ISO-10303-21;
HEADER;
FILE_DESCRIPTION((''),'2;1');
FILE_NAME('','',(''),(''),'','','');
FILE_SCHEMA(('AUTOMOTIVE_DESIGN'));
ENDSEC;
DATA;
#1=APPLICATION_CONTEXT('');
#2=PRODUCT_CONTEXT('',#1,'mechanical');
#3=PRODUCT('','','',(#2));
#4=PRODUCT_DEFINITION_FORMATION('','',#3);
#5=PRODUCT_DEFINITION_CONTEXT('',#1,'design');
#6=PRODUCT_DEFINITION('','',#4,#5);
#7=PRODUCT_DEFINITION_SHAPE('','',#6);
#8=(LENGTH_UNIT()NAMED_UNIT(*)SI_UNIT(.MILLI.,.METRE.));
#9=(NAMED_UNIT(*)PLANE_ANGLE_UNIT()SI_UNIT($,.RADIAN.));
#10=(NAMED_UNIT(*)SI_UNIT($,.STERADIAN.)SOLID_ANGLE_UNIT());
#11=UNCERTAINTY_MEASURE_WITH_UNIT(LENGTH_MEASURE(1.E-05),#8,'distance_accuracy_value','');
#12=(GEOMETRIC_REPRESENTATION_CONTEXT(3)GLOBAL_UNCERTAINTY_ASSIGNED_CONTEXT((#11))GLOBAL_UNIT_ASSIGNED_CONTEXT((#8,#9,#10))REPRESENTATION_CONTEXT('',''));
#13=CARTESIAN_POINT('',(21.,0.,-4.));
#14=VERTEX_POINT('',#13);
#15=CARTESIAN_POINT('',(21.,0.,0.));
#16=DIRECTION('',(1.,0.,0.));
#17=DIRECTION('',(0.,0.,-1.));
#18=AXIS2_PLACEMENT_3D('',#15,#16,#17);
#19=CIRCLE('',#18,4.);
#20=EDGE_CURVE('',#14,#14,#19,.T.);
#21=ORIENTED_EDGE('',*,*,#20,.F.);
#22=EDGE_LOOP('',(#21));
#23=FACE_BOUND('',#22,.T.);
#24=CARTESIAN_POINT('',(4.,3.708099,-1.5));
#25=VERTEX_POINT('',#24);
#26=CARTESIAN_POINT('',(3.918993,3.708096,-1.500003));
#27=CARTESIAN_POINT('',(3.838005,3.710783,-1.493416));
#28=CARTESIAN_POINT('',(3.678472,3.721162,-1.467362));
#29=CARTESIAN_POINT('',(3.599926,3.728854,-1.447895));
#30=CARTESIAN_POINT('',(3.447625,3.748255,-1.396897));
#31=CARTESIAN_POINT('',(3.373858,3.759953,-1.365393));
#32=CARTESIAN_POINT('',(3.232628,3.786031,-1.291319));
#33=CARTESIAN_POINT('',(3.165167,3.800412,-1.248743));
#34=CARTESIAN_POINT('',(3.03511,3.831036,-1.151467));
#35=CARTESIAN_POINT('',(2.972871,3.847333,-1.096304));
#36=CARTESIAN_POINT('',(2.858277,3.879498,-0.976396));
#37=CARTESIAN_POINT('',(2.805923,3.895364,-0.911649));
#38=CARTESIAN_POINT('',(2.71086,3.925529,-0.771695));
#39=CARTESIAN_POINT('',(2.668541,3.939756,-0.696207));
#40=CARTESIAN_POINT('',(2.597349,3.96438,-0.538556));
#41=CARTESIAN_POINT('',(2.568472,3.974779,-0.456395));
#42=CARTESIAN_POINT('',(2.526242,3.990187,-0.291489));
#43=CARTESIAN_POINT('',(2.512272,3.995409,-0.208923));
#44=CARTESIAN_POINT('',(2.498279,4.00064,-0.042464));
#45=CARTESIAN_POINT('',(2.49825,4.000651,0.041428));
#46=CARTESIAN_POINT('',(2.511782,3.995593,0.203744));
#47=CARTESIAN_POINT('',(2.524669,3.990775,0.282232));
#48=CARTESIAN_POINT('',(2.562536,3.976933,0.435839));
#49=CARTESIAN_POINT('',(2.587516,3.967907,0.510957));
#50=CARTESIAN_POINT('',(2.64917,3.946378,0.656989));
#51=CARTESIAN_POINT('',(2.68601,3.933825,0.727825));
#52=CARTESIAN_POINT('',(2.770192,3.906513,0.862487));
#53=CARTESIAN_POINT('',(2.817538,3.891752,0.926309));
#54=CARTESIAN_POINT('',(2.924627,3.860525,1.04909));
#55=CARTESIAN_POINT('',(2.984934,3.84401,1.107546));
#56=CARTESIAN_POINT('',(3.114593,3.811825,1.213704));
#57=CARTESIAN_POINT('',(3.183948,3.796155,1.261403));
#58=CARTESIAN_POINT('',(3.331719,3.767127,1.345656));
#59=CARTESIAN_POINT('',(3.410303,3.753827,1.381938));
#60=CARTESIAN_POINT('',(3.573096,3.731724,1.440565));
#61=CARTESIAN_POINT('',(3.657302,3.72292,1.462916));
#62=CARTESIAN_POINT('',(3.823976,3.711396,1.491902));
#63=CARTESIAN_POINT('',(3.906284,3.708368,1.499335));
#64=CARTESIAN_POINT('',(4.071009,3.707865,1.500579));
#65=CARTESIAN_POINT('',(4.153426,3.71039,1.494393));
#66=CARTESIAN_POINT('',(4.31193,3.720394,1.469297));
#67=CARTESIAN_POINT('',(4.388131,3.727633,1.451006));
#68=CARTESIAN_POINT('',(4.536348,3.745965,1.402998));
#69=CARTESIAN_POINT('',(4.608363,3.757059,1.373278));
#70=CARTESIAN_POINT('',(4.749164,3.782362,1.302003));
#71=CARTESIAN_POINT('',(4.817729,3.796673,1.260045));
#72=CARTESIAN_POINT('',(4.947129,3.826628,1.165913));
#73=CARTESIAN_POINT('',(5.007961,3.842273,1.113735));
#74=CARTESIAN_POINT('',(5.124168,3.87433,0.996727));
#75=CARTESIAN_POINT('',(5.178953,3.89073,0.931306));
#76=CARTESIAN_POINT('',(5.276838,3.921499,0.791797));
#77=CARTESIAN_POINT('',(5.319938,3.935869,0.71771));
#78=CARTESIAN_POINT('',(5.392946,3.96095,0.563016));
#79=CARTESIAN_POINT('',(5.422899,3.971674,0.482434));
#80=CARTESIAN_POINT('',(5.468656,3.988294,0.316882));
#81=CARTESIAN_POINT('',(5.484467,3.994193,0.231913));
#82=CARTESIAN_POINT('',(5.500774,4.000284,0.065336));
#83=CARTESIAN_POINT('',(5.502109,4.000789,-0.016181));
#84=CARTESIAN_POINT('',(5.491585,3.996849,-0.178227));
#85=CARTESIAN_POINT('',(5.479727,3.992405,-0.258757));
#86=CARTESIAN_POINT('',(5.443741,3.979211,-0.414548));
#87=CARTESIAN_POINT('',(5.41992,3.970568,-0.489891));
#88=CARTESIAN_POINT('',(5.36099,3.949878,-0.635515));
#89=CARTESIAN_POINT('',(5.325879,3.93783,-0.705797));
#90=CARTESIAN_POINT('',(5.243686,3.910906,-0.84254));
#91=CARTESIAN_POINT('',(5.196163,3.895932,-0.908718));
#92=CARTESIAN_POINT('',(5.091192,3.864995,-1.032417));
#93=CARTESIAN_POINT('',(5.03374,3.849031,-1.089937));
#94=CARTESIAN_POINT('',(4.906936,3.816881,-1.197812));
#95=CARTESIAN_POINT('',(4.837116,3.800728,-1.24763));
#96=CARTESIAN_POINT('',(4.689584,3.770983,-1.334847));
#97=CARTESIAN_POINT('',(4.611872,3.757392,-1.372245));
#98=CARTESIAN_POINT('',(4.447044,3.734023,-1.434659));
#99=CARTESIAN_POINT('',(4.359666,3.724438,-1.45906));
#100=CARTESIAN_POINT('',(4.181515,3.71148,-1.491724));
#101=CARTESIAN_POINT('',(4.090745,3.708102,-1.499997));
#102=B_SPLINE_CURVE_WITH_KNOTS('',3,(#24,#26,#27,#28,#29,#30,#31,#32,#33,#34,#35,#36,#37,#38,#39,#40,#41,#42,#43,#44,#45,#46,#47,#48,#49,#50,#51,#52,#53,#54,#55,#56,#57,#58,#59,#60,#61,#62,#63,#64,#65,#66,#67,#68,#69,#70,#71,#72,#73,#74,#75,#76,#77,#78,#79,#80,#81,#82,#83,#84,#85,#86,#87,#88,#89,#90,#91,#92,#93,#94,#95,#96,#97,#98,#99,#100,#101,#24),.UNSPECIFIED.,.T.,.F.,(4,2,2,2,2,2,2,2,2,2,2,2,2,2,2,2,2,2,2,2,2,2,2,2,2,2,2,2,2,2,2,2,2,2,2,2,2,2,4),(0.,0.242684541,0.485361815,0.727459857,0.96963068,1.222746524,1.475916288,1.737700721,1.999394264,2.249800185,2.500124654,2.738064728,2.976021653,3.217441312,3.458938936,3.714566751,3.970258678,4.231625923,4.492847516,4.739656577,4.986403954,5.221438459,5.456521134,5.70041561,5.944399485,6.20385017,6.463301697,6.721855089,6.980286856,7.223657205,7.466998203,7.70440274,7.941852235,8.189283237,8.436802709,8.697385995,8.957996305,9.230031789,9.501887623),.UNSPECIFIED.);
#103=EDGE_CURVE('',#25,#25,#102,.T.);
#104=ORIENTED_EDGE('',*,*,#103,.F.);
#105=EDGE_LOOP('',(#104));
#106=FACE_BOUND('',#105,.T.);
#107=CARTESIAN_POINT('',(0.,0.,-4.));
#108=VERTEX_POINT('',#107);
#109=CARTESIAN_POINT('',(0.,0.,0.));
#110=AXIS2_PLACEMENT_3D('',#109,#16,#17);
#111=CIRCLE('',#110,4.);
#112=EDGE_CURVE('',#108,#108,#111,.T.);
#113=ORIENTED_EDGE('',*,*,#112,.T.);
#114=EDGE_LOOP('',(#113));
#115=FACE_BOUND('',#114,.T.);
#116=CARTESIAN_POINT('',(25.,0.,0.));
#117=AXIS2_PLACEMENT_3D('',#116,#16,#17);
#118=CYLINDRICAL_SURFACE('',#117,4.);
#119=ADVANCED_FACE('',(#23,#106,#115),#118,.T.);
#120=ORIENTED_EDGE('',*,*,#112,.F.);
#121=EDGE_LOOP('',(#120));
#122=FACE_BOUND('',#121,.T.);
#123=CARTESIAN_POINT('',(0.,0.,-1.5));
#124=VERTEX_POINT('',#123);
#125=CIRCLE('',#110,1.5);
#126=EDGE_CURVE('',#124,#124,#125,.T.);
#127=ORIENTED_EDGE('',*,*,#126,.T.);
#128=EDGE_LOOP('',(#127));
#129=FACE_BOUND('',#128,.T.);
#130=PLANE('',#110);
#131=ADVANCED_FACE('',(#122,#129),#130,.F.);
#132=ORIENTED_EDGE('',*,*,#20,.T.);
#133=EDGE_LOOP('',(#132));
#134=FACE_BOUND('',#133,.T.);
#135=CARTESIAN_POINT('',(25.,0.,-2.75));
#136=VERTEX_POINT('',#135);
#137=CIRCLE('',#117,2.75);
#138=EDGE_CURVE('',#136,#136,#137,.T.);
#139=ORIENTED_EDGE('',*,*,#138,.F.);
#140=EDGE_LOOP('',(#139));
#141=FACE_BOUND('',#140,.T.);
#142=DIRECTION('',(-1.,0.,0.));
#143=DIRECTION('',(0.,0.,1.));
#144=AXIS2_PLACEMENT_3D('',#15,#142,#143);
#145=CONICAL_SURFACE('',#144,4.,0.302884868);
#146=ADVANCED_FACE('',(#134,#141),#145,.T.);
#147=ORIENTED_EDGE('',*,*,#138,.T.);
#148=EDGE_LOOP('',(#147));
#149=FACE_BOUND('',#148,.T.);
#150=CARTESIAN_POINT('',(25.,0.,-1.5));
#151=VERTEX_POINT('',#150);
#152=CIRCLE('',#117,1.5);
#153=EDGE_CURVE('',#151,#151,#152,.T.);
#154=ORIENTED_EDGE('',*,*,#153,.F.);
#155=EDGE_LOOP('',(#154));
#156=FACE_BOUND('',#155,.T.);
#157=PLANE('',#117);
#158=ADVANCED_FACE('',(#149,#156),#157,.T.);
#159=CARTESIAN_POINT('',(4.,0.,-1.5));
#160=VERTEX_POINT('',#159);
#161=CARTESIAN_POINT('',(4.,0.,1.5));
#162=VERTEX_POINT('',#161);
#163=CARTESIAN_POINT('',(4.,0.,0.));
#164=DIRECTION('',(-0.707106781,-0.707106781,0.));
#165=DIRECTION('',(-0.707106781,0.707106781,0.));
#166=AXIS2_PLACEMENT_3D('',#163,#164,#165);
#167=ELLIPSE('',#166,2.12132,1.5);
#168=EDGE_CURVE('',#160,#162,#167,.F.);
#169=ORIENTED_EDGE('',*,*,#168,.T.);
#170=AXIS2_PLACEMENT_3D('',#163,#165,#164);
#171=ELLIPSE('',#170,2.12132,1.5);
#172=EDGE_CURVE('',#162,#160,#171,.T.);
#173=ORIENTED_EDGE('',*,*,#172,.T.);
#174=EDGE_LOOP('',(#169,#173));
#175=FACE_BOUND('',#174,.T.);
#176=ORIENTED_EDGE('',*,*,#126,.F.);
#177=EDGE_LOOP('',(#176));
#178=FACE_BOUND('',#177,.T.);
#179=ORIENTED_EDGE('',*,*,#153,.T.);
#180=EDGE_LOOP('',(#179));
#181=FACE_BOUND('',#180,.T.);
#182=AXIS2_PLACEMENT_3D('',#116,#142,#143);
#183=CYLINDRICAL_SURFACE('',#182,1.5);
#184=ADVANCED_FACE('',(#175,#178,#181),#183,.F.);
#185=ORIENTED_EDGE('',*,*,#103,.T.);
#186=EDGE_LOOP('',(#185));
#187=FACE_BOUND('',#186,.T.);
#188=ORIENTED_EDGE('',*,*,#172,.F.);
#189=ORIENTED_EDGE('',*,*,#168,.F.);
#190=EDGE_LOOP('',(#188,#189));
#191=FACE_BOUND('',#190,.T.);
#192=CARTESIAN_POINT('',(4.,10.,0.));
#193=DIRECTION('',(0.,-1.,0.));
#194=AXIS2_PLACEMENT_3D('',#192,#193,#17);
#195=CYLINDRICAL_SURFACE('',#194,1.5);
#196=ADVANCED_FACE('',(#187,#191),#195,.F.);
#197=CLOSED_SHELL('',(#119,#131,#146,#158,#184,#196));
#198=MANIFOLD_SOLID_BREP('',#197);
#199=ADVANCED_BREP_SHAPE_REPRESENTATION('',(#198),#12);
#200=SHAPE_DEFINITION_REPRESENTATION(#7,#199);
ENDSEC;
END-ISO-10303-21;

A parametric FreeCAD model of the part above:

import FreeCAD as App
import Part
import Sketcher
from FreeCAD import Vector
Q = App.Units.Quantity


def add_polygon(sketch, points):
    """Adds a closed chain of lines whose ends are joined by coincident constraints."""
    first, n = sketch.GeometryCount, len(points)
    for a, b in zip(points, points[1:] + points[:1]):
        sketch.addGeometry(Part.LineSegment(App.Vector(*a, 0), App.Vector(*b, 0)), False)
    for i in range(n):
        sketch.addConstraint(Sketcher.Constraint("Coincident", first + i, 2, first + (i + 1) % n, 1))

doc = App.newDocument("Part")
body = doc.addObject("PartDesign::Body", "Body")

sketch1 = body.newObject("Sketcher::SketchObject", "Sketch")
sketch1.AttachmentSupport = (doc.getObject("XY_Plane"), [""])
sketch1.MapMode = "FlatFace"
add_polygon(sketch1, [(0, 4), (0, 0), (25, 0), (25, 2.8), (21, 4)])
sketch1.addConstraint(Sketcher.Constraint("Vertical", 0))
sketch1.addConstraint(Sketcher.Constraint("Horizontal", 1))
sketch1.addConstraint(Sketcher.Constraint("Vertical", 2))
sketch1.addConstraint(Sketcher.Constraint("Horizontal", 4))
sketch1.addConstraint(Sketcher.Constraint("Coincident", 0, 2, -1, 1))
sketch1.addConstraint(Sketcher.Constraint("DistanceX", 1, 1, 1, 2, Q("25 mm")))
sketch1.addConstraint(Sketcher.Constraint("DistanceX", 4, 2, 4, 1, Q("21 mm")))
sketch1.addConstraint(Sketcher.Constraint("DistanceY", 0, 2, 0, 1, Q("4 mm")))
sketch1.addConstraint(Sketcher.Constraint("DistanceY", 2, 1, 2, 2, Q("2.75 mm")))
revolution = body.newObject("PartDesign::Revolution", "Revolution")
revolution.Profile = sketch1
revolution.ReferenceAxis = (sketch1, ["H_Axis"])
revolution.Angle = 360

sketch2 = body.newObject("Sketcher::SketchObject", "Sketch001")
sketch2.AttachmentSupport = (doc.getObject("YZ_Plane"), [""])
sketch2.MapMode = "FlatFace"
sketch2.addGeometry(Part.Circle(Vector(0, 0, 0), Vector(0, 0, 1), 1.5), False)
sketch2.addConstraint(Sketcher.Constraint("Coincident", 0, 3, -1, 1))
sketch2.addConstraint(Sketcher.Constraint("Diameter", 0, Q("3 mm")))
pocket1 = body.newObject("PartDesign::Pocket", "Pocket")
pocket1.Profile = sketch2
pocket1.Type = "ThroughAll"
pocket1.Reversed = True

sketch3 = body.newObject("Sketcher::SketchObject", "Sketch002")
sketch3.AttachmentSupport = (doc.getObject("XZ_Plane"), [""])
sketch3.MapMode = "FlatFace"
sketch3.addGeometry(Part.Circle(Vector(4, 0, 0), Vector(0, 0, 1), 1.5), False)
sketch3.addConstraint(Sketcher.Constraint("PointOnObject", 0, 3, -1))
sketch3.addConstraint(Sketcher.Constraint("Diameter", 0, Q("3 mm")))
sketch3.addConstraint(Sketcher.Constraint("DistanceX", -1, 1, 0, 3, Q("4 mm")))
pocket2 = body.newObject("PartDesign::Pocket", "Pocket001")
pocket2.Profile = sketch3
pocket2.Length = 10

doc.recompute()
